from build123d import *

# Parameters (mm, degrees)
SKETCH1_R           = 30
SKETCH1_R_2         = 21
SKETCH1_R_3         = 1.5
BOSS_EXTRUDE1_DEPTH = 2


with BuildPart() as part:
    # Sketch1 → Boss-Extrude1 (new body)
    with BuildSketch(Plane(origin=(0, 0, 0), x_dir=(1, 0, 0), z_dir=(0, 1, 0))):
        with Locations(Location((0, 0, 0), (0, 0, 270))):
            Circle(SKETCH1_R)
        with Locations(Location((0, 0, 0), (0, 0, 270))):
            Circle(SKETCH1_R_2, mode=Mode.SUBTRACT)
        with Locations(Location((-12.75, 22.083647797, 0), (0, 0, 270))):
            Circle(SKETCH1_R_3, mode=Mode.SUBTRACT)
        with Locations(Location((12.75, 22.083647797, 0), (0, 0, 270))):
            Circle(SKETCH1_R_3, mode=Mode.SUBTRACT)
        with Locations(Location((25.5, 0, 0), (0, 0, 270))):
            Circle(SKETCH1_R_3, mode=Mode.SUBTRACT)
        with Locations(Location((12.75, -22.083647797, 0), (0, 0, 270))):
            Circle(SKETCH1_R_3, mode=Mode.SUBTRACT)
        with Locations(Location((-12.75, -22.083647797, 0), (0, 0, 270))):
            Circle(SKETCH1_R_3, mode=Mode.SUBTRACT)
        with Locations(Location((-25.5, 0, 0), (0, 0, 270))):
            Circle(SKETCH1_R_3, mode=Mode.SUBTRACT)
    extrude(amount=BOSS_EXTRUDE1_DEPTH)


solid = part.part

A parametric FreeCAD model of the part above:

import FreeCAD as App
import Part
import Sketcher
Q = App.Units.Quantity

doc = App.newDocument("Part")
body = doc.addObject("PartDesign::Body", "Body")

sketch1 = body.newObject("Sketcher::SketchObject", "Sketch")
sketch1.AttachmentSupport = (doc.getObject("XZ_Plane"), [""])
sketch1.MapMode = "FlatFace"
sketch1.addGeometry(Part.Circle(App.Vector(0, 0, 0), App.Vector(0, 0, 1), 30), False)
sketch1.addGeometry(Part.Circle(App.Vector(-12.75, -22.083648, 0), App.Vector(0, 0, 1), 1.5), False)
sketch1.addGeometry(Part.Circle(App.Vector(-25.5, 0, 0), App.Vector(0, 0, 1), 1.5), False)
sketch1.addGeometry(Part.Circle(App.Vector(-12.75, 22.083648, 0), App.Vector(0, 0, 1), 1.5), False)
sketch1.addGeometry(Part.Circle(App.Vector(12.75, -22.083648, 0), App.Vector(0, 0, 1), 1.5), False)
sketch1.addGeometry(Part.Circle(App.Vector(25.5, 0, 0), App.Vector(0, 0, 1), 1.5), False)
sketch1.addGeometry(Part.Circle(App.Vector(0, 0, 0), App.Vector(0, 0, 1), 21), False)
sketch1.addGeometry(Part.Circle(App.Vector(12.75, 22.083648, 0), App.Vector(0, 0, 1), 1.5), False)
sketch1.addConstraint(Sketcher.Constraint("Coincident", 0, 3, -1, 1))
sketch1.addConstraint(Sketcher.Constraint("Coincident", 6, 3, -1, 1))
sketch1.addConstraint(Sketcher.Constraint("Equal", 1, 2))
sketch1.addConstraint(Sketcher.Constraint("Equal", 2, 3))
sketch1.addConstraint(Sketcher.Constraint("Equal", 3, 4))
sketch1.addConstraint(Sketcher.Constraint("Equal", 4, 5))
sketch1.addConstraint(Sketcher.Constraint("Equal", 5, 7))
sketch1.addConstraint(Sketcher.Constraint("Symmetric", 3, 3, 4, 3, -1, 1))
sketch1.addConstraint(Sketcher.Constraint("Symmetric", 2, 3, 5, 3, -1, 1))
sketch1.addConstraint(Sketcher.Constraint("Symmetric", 1, 3, 7, 3, -1, 1))
sketch1.addConstraint(Sketcher.Constraint("Symmetric", 1, 3, 4, 3, -2))
sketch1.addConstraint(Sketcher.Constraint("PointOnObject", 2, 3, -1))
sketch1.addConstraint(Sketcher.Constraint("Diameter", 0, Q("60 mm")))
sketch1.addConstraint(Sketcher.Constraint("Diameter", 1, Q("3 mm")))
sketch1.addConstraint(Sketcher.Constraint("Diameter", 6, Q("42 mm")))
sketch1.addConstraint(Sketcher.Constraint("DistanceX", 2, 3, 5, 3, Q("51 mm")))
sketch1.addConstraint(Sketcher.Constraint("DistanceX", 1, 3, 4, 3, Q("25.5 mm")))
sketch1.addConstraint(Sketcher.Constraint("DistanceY", 1, 3, -1, 1, Q("22.083648 mm")))
pad1 = body.newObject("PartDesign::Pad", "Pad")
pad1.Profile = sketch1
pad1.Length = 2
pad1.Reversed = True

doc.recompute()
